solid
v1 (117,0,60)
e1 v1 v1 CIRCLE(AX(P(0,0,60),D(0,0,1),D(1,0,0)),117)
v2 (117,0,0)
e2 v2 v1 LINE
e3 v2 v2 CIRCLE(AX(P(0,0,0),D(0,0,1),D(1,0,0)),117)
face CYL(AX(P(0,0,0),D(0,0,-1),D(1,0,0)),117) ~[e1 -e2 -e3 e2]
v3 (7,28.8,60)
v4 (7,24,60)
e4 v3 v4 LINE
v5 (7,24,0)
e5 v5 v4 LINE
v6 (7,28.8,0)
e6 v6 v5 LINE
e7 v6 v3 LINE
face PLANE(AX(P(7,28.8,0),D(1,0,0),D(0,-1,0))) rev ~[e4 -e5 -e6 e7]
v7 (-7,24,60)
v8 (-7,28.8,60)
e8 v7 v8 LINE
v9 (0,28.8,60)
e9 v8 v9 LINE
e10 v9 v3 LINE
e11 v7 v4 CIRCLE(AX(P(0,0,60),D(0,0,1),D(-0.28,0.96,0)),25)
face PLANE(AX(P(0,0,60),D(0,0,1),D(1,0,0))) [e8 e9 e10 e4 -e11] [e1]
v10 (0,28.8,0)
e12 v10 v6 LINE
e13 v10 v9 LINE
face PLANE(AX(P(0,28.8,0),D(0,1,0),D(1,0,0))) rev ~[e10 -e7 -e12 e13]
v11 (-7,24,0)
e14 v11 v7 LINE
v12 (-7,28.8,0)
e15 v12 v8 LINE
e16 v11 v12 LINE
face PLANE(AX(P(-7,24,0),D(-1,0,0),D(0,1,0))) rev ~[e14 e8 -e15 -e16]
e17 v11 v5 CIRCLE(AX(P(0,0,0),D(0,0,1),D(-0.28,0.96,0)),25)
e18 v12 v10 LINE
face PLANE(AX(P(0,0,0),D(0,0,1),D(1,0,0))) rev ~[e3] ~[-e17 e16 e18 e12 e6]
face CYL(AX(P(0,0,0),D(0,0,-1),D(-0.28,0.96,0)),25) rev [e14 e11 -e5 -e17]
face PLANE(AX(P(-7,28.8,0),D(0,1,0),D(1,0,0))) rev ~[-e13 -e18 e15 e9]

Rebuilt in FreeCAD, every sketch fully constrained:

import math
import FreeCAD as App
import Part
import Sketcher

V = App.Vector
Q = App.Units.Quantity

doc = App.newDocument("Part")
body = doc.addObject("PartDesign::Body", "Body")

# Sketch on XY plane
sketch1 = doc.addObject("Sketcher::SketchObject", "Sketch")
body.addObject(sketch1)
sketch1.AttachmentSupport = (doc.XY_Plane, [""])
sketch1.MapMode = "FlatFace"
sketch1.addGeometry([
    Part.Circle(V(0, 0, 0), V(0, 0, 1), 117),  # 0
    Part.ArcOfCircle(Part.Circle(V(0, 0, 0), V(0, 0, 1), 25), math.radians(106), math.radians(434)),  # 1
    Part.LineSegment(V(-7, 24, 0), V(-7, 28.8, 0)),  # 2
    Part.LineSegment(V(-7, 28.8, 0), V(7, 28.8, 0)),  # 3
    Part.LineSegment(V(7, 28.8, 0), V(7, 24, 0)),  # 4
], False)
sketch1.addConstraint([
    Sketcher.Constraint("Coincident", 1, 1, 2, 1),
    Sketcher.Constraint("Coincident", 2, 2, 3, 1),
    Sketcher.Constraint("Coincident", 3, 2, 4, 1),
    Sketcher.Constraint("Coincident", 4, 2, 1, 2),
    Sketcher.Constraint("Vertical", 2),
    Sketcher.Constraint("Horizontal", 3),
    Sketcher.Constraint("Vertical", 4),
    Sketcher.Constraint("Coincident", 0, 3, -1, 1),
    Sketcher.Constraint("Coincident", 1, 3, -1, 1),
    Sketcher.Constraint("Horizontal", 1, 1, 4, 2),
    Sketcher.Constraint("Diameter", 0, Q("234 mm")),
    Sketcher.Constraint("Radius", 1, Q("25 mm")),
    Sketcher.Constraint("DistanceX", 3, 1, 3, 2, Q("14 mm")),
    Sketcher.Constraint("DistanceY", 2, 1, 2, 2, Q("4.8 mm")),
])
pad1 = doc.addObject("PartDesign::Pad", "Pad")
body.addObject(pad1)
pad1.Profile = sketch1
pad1.Length = 60

doc.recompute()
